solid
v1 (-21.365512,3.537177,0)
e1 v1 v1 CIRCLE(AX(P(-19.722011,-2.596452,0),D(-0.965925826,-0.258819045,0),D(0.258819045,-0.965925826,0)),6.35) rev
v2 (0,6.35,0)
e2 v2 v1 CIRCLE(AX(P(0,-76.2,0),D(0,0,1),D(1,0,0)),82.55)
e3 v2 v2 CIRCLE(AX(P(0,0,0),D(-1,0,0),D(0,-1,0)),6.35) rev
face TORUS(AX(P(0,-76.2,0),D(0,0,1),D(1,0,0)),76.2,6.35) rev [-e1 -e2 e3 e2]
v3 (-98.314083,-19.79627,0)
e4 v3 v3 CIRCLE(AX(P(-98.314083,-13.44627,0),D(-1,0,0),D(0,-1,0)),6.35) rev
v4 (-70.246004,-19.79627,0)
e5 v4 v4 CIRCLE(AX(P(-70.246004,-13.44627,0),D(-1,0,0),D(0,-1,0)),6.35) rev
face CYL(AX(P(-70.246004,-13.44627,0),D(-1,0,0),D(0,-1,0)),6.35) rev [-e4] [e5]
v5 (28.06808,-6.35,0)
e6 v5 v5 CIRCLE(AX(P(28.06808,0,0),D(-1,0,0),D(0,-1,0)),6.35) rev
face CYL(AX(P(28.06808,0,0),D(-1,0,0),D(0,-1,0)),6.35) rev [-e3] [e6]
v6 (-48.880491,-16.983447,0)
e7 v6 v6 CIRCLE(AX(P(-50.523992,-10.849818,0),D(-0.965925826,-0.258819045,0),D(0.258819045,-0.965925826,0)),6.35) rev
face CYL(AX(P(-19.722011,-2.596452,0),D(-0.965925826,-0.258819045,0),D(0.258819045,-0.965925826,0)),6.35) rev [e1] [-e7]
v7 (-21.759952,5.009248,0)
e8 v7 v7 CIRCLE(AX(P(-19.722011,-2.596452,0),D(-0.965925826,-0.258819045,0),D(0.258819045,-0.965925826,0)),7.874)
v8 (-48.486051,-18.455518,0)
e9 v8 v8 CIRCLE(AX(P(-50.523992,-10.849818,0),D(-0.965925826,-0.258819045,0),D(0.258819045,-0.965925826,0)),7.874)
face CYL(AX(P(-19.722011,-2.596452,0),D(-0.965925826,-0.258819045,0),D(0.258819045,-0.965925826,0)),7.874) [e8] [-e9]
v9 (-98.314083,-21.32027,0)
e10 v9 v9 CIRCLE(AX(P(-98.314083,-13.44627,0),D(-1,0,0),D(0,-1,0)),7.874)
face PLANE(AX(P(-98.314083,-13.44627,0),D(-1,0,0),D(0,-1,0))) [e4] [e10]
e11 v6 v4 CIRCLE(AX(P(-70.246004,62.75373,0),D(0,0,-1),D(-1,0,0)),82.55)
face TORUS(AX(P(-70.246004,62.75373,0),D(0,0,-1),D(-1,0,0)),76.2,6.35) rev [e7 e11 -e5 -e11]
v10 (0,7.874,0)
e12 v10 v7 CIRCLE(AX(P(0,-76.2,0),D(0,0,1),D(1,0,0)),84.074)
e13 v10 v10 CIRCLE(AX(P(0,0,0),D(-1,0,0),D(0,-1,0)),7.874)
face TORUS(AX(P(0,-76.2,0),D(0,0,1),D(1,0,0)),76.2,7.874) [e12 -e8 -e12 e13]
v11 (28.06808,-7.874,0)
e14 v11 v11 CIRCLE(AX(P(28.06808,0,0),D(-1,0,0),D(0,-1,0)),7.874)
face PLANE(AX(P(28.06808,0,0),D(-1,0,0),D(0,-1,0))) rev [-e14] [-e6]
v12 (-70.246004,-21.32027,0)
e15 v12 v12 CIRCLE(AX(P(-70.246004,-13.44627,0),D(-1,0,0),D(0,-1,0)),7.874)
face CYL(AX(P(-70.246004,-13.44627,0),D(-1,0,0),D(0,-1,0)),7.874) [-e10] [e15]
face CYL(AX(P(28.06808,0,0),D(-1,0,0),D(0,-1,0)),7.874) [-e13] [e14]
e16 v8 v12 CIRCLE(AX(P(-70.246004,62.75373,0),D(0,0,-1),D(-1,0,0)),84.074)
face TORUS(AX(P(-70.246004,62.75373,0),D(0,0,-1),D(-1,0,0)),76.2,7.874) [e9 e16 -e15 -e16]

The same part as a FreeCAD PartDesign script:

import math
import FreeCAD as App
import Part
import Sketcher

V = App.Vector
Q = App.Units.Quantity

doc = App.newDocument("Part")
body = doc.addObject("PartDesign::Body", "Body")

# Sketch on YZ plane
sketch1 = body.newObject("Sketcher::SketchObject", "Sketch")
sketch1.AttachmentSupport = (doc.getObject("YZ_Plane"), [""])
sketch1.MapMode = "FlatFace"
sketch1.AttachmentOffset = App.Placement(V(0, 0, 28.06808), App.Rotation())
sketch1.addGeometry(Part.Circle(V(0, 0, 0), V(0, 0, 1), 8), False)
sketch1.addGeometry(Part.Circle(V(0, 0, 0), V(0, 0, 1), 6), False)
sketch1.addConstraint(Sketcher.Constraint("Coincident", 0, 3, -1, 1))
sketch1.addConstraint(Sketcher.Constraint("Coincident", 1, 3, -1, 1))
sketch1.addConstraint(Sketcher.Constraint("Diameter", 1, Q("0.5 in")))
sketch1.addConstraint(Sketcher.Constraint("Diameter", 0, Q("0.62 in")))

# Sketch on XY plane
sketch2 = body.newObject("Sketcher::SketchObject", "Sketch001")
sketch2.AttachmentSupport = (doc.getObject("XY_Plane"), [""])
sketch2.MapMode = "FlatFace"
sketch2.addGeometry(Part.LineSegment(V(28, 0, 0), V(0, 0, 0)), False)
sketch2.addGeometry(Part.ArcOfCircle(Part.Circle(V(0, -76, 0), V(0, 0, 1), 76), math.radians(90), math.radians(105)), False)
sketch2.addGeometry(Part.LineSegment(V(-20, -3, 0), V(-51, -11, 0)), False)
sketch2.addGeometry(Part.ArcOfCircle(Part.Circle(V(-70, 63, 0), V(0, 0, 1), 76), math.radians(-90), math.radians(-75)), False)
sketch2.addGeometry(Part.LineSegment(V(-70, -13, 0), V(-98, -13, 0)), False)
sketch2.addConstraint(Sketcher.Constraint("Tangent", 0, 2, 1, 1))
sketch2.addConstraint(Sketcher.Constraint("Tangent", 1, 2, 2, 1))
sketch2.addConstraint(Sketcher.Constraint("Tangent", 2, 2, 3, 2))
sketch2.addConstraint(Sketcher.Constraint("Tangent", 3, 1, 4, 1))
sketch2.addConstraint(Sketcher.Constraint("Horizontal", 0))
sketch2.addConstraint(Sketcher.Constraint("Horizontal", 4))
sketch2.addConstraint(Sketcher.Constraint("Coincident", 0, 2, -1, 1))
sketch2.addConstraint(Sketcher.Constraint("Equal", 1, 3))
sketch2.addConstraint(Sketcher.Constraint("Equal", 0, 4))
sketch2.addConstraint(Sketcher.Constraint("Radius", 1, Q("3 in")))
sketch2.addConstraint(Sketcher.Constraint("Angle", 2, Q("-165 deg")))
sketch2.addConstraint(Sketcher.Constraint("DistanceX", 0, 2, 0, 1, 28.06808))
sketch2.addConstraint(Sketcher.Constraint("DistanceY", -1, 1, 3, 3, 62.75373))
doc.recompute()

additivepipe = body.newObject("PartDesign::AdditivePipe", "AdditivePipe")
additivepipe.Profile = sketch1
additivepipe.Spine = (sketch2, ["Edge1", "Edge2", "Edge3", "Edge4", "Edge5"])

doc.recompute()
